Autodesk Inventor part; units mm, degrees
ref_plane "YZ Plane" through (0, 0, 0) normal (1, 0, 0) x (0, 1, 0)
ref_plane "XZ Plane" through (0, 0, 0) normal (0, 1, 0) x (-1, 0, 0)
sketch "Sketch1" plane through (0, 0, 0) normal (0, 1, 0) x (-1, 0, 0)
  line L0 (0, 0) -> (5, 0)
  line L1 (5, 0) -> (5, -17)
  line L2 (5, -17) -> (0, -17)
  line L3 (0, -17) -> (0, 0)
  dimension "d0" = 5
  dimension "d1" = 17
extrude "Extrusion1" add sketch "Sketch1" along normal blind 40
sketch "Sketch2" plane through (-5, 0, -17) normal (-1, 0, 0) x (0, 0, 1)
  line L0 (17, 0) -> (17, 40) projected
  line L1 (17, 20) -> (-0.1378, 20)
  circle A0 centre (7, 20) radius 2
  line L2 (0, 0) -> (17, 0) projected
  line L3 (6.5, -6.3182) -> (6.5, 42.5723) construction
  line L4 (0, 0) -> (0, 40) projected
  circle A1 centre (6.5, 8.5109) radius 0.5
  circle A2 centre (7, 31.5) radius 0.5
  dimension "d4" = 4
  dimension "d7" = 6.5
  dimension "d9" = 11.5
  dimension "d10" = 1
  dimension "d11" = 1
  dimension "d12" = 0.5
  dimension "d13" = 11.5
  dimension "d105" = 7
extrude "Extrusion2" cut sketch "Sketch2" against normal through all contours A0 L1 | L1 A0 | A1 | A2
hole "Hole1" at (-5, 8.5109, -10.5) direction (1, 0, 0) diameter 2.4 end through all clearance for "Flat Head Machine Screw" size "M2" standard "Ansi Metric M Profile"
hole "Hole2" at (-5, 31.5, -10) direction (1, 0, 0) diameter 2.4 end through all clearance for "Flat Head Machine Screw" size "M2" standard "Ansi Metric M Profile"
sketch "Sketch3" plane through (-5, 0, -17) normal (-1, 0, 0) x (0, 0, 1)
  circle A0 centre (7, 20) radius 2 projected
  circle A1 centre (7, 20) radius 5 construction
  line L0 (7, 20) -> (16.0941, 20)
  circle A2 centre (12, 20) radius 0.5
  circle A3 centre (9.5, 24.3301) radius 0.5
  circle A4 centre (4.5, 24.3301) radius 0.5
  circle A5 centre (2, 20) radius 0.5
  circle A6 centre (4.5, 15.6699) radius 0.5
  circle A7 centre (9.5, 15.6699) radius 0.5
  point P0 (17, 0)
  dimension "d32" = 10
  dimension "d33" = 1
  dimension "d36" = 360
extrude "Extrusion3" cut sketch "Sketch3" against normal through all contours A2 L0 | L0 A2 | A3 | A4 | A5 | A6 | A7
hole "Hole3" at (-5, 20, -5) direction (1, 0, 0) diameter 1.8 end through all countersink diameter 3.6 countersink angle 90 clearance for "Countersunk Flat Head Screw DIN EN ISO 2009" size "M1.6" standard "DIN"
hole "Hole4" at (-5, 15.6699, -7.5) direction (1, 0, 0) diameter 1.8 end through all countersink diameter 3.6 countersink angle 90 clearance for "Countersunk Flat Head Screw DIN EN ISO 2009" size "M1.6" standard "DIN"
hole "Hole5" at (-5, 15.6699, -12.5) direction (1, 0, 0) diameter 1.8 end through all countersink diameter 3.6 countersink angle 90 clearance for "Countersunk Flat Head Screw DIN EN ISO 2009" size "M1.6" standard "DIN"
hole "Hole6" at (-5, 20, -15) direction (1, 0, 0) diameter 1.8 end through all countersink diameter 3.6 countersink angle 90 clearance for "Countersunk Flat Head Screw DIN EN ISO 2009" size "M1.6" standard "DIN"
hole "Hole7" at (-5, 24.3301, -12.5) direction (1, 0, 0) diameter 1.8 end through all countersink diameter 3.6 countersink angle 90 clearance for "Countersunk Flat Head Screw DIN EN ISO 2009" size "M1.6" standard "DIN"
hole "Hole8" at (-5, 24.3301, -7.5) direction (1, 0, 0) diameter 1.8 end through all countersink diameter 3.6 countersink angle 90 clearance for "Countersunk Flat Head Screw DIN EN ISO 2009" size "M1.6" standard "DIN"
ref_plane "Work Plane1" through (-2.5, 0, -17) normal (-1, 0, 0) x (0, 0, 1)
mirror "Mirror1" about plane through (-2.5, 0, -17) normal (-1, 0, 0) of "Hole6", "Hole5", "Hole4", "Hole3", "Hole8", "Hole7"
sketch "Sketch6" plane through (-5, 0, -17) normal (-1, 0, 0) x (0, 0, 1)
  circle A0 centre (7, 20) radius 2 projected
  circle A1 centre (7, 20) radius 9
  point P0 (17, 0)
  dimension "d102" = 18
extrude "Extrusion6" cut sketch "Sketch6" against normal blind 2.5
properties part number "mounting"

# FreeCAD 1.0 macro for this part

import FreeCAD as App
import Part
import Sketcher
from FreeCAD import Vector
Q = App.Units.Quantity


def add_polygon(sketch, points):
    """Adds a closed chain of lines whose ends are joined by coincident constraints."""
    first, n = sketch.GeometryCount, len(points)
    for a, b in zip(points, points[1:] + points[:1]):
        sketch.addGeometry(Part.LineSegment(App.Vector(*a, 0), App.Vector(*b, 0)), False)
    for i in range(n):
        sketch.addConstraint(Sketcher.Constraint("Coincident", first + i, 2, first + (i + 1) % n, 1))

doc = App.newDocument("Part")
params = doc.addObject("Spreadsheet::Sheet", "Params")
for row, (alias, value) in enumerate([
    ("sketch1_width", "5 mm"),
    ("sketch1_height", "17 mm"),
    ("pad1_length", "40 mm"),
    ("sketch2_diameter", "4 mm"),
    ("sketch2_diameter2", "1 mm"),
    ("sketch3_diameter", "2.4 mm"),
    ("hole_diameter", "2.4 mm"),
    ("sketch4_diameter", "2.4 mm"),
    ("hole2_diameter", "2.4 mm"),
    ("sketch5_diameter", "1 mm"),
    ("sketch6_diameter", "1.8 mm"),
    ("hole3_diameter", "1.8 mm"),
    ("hole3_csink_diameter", "3.6 mm"),
    ("sketch7_diameter", "1.8 mm"),
    ("hole4_diameter", "1.8 mm"),
    ("hole4_csink_diameter", "3.6 mm"),
    ("sketch8_diameter", "1.8 mm"),
    ("hole5_diameter", "1.8 mm"),
    ("hole5_csink_diameter", "3.6 mm"),
    ("sketch9_diameter", "1.8 mm"),
    ("hole6_diameter", "1.8 mm"),
    ("hole6_csink_diameter", "3.6 mm"),
    ("sketch10_diameter", "1.8 mm"),
    ("hole7_diameter", "1.8 mm"),
    ("hole7_csink_diameter", "3.6 mm"),
    ("sketch11_diameter", "1.8 mm"),
    ("hole8_diameter", "1.8 mm"),
    ("hole8_csink_diameter", "3.6 mm"),
    ("sketch12_diameter", "18 mm"),
    ("sketch12_diameter2", "4 mm"),
    ("pocket3_length", "2.5 mm"),
], start=1):
    params.set(f"A{row}", alias)
    params.set(f"B{row}", "=" + value)
    params.setAlias(f"B{row}", alias)

body = doc.addObject("PartDesign::Body", "Body")

# Sketch on XZ plane
sketch1 = body.newObject("Sketcher::SketchObject", "Sketch")
sketch1.AttachmentSupport = (doc.getObject("XZ_Plane"), [""])
sketch1.MapMode = "FlatFace"
add_polygon(sketch1, [(-5, 0), (0, 0), (0, -17), (-5, -17)])  # lines 0-3
sketch1.addConstraint(Sketcher.Constraint("Horizontal", 0))
sketch1.addConstraint(Sketcher.Constraint("Vertical", 1))
sketch1.addConstraint(Sketcher.Constraint("Horizontal", 2))
sketch1.addConstraint(Sketcher.Constraint("Vertical", 3))
sketch1.addConstraint(Sketcher.Constraint("Coincident", 0, 2, -1, 1))
sketch1.addConstraint(Sketcher.Constraint("DistanceX", 0, 1, 0, 2, Q("5 mm")))
sketch1.addConstraint(Sketcher.Constraint("DistanceY", 1, 2, 1, 1, Q("17 mm")))
sketch1.setExpression("Constraints[9]", "Params.sketch1_width")
sketch1.setExpression("Constraints[10]", "Params.sketch1_height")
pad1 = body.newObject("PartDesign::Pad", "Pad")
pad1.Profile = sketch1
pad1.setExpression("Length", "Params.pad1_length")
pad1.Reversed = True

# Sketch on YZ plane
sketch2 = body.newObject("Sketcher::SketchObject", "Sketch001")
sketch2.AttachmentSupport = (doc.getObject("YZ_Plane"), [""])
sketch2.MapMode = "FlatFace"
sketch2.AttachmentOffset = App.Placement(Vector(0, 0, -5), App.Rotation())
sketch2.addGeometry(Part.Circle(Vector(20, -10, 0), Vector(0, 0, 1), 2), False)
sketch2.addGeometry(Part.Circle(Vector(8.5, -10.5, 0), Vector(0, 0, 1), 0.5), False)
sketch2.addGeometry(Part.Circle(Vector(31.5, -10, 0), Vector(0, 0, 1), 0.5), False)
sketch2.addConstraint(Sketcher.Constraint("Equal", 1, 2))
sketch2.addConstraint(Sketcher.Constraint("Horizontal", 0, 3, 2, 3))
sketch2.addConstraint(Sketcher.Constraint("Diameter", 0, Q("4 mm")))
sketch2.addConstraint(Sketcher.Constraint("Diameter", 1, Q("1 mm")))
sketch2.addConstraint(Sketcher.Constraint("DistanceY", 1, 3, 0, 3, Q("0.5 mm")))
sketch2.addConstraint(Sketcher.Constraint("DistanceX", 0, 3, 2, 3, Q("11.5 mm")))
sketch2.addConstraint(Sketcher.Constraint("DistanceX", -1, 1, 0, 3, Q("20 mm")))
sketch2.addConstraint(Sketcher.Constraint("DistanceY", 0, 3, -1, 1, Q("10 mm")))
sketch2.addConstraint(Sketcher.Constraint("DistanceX", -1, 1, 1, 3, Q("8.511 mm")))
sketch2.setExpression("Constraints[2]", "Params.sketch2_diameter")
sketch2.setExpression("Constraints[3]", "Params.sketch2_diameter2")
pocket1 = body.newObject("PartDesign::Pocket", "Pocket")
pocket1.Profile = sketch2
pocket1.Type = "ThroughAll"
pocket1.Reversed = True

# Sketch on YZ plane
sketch3 = body.newObject("Sketcher::SketchObject", "Sketch002")
sketch3.AttachmentSupport = (doc.getObject("YZ_Plane"), [""])
sketch3.MapMode = "FlatFace"
sketch3.AttachmentOffset = App.Placement(Vector(0, 0, -5), App.Rotation())
sketch3.addGeometry(Part.Circle(Vector(8.5, -10.5, 0), Vector(0, 0, 1), 1.2), False)
sketch3.addConstraint(Sketcher.Constraint("Diameter", 0, Q("2.4 mm")))
sketch3.addConstraint(Sketcher.Constraint("DistanceY", 0, 3, -1, 1, Q("10.5 mm")))
sketch3.addConstraint(Sketcher.Constraint("DistanceX", -1, 1, 0, 3, Q("8.511 mm")))
sketch3.setExpression("Constraints[0]", "Params.sketch3_diameter")
doc.recompute()
hole = body.newObject("PartDesign::Hole", "Hole")
hole.Profile = sketch3
hole.ThreadType = "None"
hole.setExpression("Diameter", "Params.hole_diameter")
hole.DepthType = "ThroughAll"
hole.Reversed = True

# Sketch on YZ plane
sketch4 = body.newObject("Sketcher::SketchObject", "Sketch003")
sketch4.AttachmentSupport = (doc.getObject("YZ_Plane"), [""])
sketch4.MapMode = "FlatFace"
sketch4.AttachmentOffset = App.Placement(Vector(0, 0, -5), App.Rotation())
sketch4.addGeometry(Part.Circle(Vector(31.5, -10, 0), Vector(0, 0, 1), 1.2), False)
sketch4.addConstraint(Sketcher.Constraint("Diameter", 0, Q("2.4 mm")))
sketch4.addConstraint(Sketcher.Constraint("DistanceY", 0, 3, -1, 1, Q("10 mm")))
sketch4.addConstraint(Sketcher.Constraint("DistanceX", -1, 1, 0, 3, Q("31.5 mm")))
sketch4.setExpression("Constraints[0]", "Params.sketch4_diameter")
doc.recompute()
hole2 = body.newObject("PartDesign::Hole", "Hole001")
hole2.Profile = sketch4
hole2.ThreadType = "None"
hole2.setExpression("Diameter", "Params.hole2_diameter")
hole2.DepthType = "ThroughAll"
hole2.Reversed = True

# Sketch on YZ plane
sketch5 = body.newObject("Sketcher::SketchObject", "Sketch004")
sketch5.AttachmentSupport = (doc.getObject("YZ_Plane"), [""])
sketch5.MapMode = "FlatFace"
sketch5.AttachmentOffset = App.Placement(Vector(0, 0, -5), App.Rotation())
sketch5.addGeometry(Part.Circle(Vector(20, -5, 0), Vector(0, 0, 1), 0.5), False)
sketch5.addGeometry(Part.Circle(Vector(24.3, -7.5, 0), Vector(0, 0, 1), 0.5), False)
sketch5.addGeometry(Part.Circle(Vector(24.3, -12.5, 0), Vector(0, 0, 1), 0.5), False)
sketch5.addGeometry(Part.Circle(Vector(20, -15, 0), Vector(0, 0, 1), 0.5), False)
sketch5.addGeometry(Part.Circle(Vector(15.7, -12.5, 0), Vector(0, 0, 1), 0.5), False)
sketch5.addGeometry(Part.Circle(Vector(15.7, -7.5, 0), Vector(0, 0, 1), 0.5), False)
sketch5.addConstraint(Sketcher.Constraint("Equal", 0, 1))
sketch5.addConstraint(Sketcher.Constraint("Equal", 1, 2))
sketch5.addConstraint(Sketcher.Constraint("Equal", 2, 3))
sketch5.addConstraint(Sketcher.Constraint("Equal", 3, 4))
sketch5.addConstraint(Sketcher.Constraint("Equal", 4, 5))
sketch5.addConstraint(Sketcher.Constraint("Horizontal", 2, 3, 4, 3))
sketch5.addConstraint(Sketcher.Constraint("Horizontal", 1, 3, 5, 3))
sketch5.addConstraint(Sketcher.Constraint("Vertical", 1, 3, 2, 3))
sketch5.addConstraint(Sketcher.Constraint("Vertical", 0, 3, 3, 3))
sketch5.addConstraint(Sketcher.Constraint("Vertical", 4, 3, 5, 3))
sketch5.addConstraint(Sketcher.Constraint("Diameter", 0, Q("1 mm")))
sketch5.addConstraint(Sketcher.Constraint("DistanceY", 3, 3, 0, 3, Q("10 mm")))
sketch5.addConstraint(Sketcher.Constraint("DistanceX", -1, 1, 0, 3, Q("20 mm")))
sketch5.addConstraint(Sketcher.Constraint("DistanceY", 0, 3, -1, 1, Q("5 mm")))
sketch5.addConstraint(Sketcher.Constraint("DistanceY", 2, 3, 1, 3, Q("5 mm")))
sketch5.addConstraint(Sketcher.Constraint("DistanceY", 1, 3, -1, 1, Q("7.5 mm")))
sketch5.addConstraint(Sketcher.Constraint("DistanceX", -1, 1, 1, 3, Q("24.33 mm")))
sketch5.addConstraint(Sketcher.Constraint("DistanceX", -1, 1, 4, 3, Q("15.67 mm")))
sketch5.setExpression("Constraints[10]", "Params.sketch5_diameter")
pocket2 = body.newObject("PartDesign::Pocket", "Pocket001")
pocket2.Profile = sketch5
pocket2.Type = "ThroughAll"
pocket2.Reversed = True

# Sketch on YZ plane
sketch6 = body.newObject("Sketcher::SketchObject", "Sketch005")
sketch6.AttachmentSupport = (doc.getObject("YZ_Plane"), [""])
sketch6.MapMode = "FlatFace"
sketch6.AttachmentOffset = App.Placement(Vector(0, 0, -5), App.Rotation())
sketch6.addGeometry(Part.Circle(Vector(20, -5, 0), Vector(0, 0, 1), 0.9), False)
sketch6.addConstraint(Sketcher.Constraint("Diameter", 0, Q("1.8 mm")))
sketch6.addConstraint(Sketcher.Constraint("DistanceX", -1, 1, 0, 3, Q("20 mm")))
sketch6.addConstraint(Sketcher.Constraint("DistanceY", 0, 3, -1, 1, Q("5 mm")))
sketch6.setExpression("Constraints[0]", "Params.sketch6_diameter")
doc.recompute()
hole3 = body.newObject("PartDesign::Hole", "Hole002")
hole3.Profile = sketch6
hole3.ThreadType = "None"
hole3.setExpression("Diameter", "Params.hole3_diameter")
hole3.DepthType = "ThroughAll"
hole3.HoleCutType = "Countersink"
hole3.setExpression("HoleCutDiameter", "Params.hole3_csink_diameter")
hole3.HoleCutCountersinkAngle = 90
hole3.Reversed = True

# Sketch on YZ plane
sketch7 = body.newObject("Sketcher::SketchObject", "Sketch006")
sketch7.AttachmentSupport = (doc.getObject("YZ_Plane"), [""])
sketch7.MapMode = "FlatFace"
sketch7.AttachmentOffset = App.Placement(Vector(0, 0, -5), App.Rotation())
sketch7.addGeometry(Part.Circle(Vector(15.7, -7.5, 0), Vector(0, 0, 1), 0.9), False)
sketch7.addConstraint(Sketcher.Constraint("Diameter", 0, Q("1.8 mm")))
sketch7.addConstraint(Sketcher.Constraint("DistanceY", 0, 3, -1, 1, Q("7.5 mm")))
sketch7.addConstraint(Sketcher.Constraint("DistanceX", -1, 1, 0, 3, Q("15.67 mm")))
sketch7.setExpression("Constraints[0]", "Params.sketch7_diameter")
doc.recompute()
hole4 = body.newObject("PartDesign::Hole", "Hole003")
hole4.Profile = sketch7
hole4.ThreadType = "None"
hole4.setExpression("Diameter", "Params.hole4_diameter")
hole4.DepthType = "ThroughAll"
hole4.HoleCutType = "Countersink"
hole4.setExpression("HoleCutDiameter", "Params.hole4_csink_diameter")
hole4.HoleCutCountersinkAngle = 90
hole4.Reversed = True

# Sketch on YZ plane
sketch8 = body.newObject("Sketcher::SketchObject", "Sketch007")
sketch8.AttachmentSupport = (doc.getObject("YZ_Plane"), [""])
sketch8.MapMode = "FlatFace"
sketch8.AttachmentOffset = App.Placement(Vector(0, 0, -5), App.Rotation())
sketch8.addGeometry(Part.Circle(Vector(15.7, -12.5, 0), Vector(0, 0, 1), 0.9), False)
sketch8.addConstraint(Sketcher.Constraint("Diameter", 0, Q("1.8 mm")))
sketch8.addConstraint(Sketcher.Constraint("DistanceY", 0, 3, -1, 1, Q("12.5 mm")))
sketch8.addConstraint(Sketcher.Constraint("DistanceX", -1, 1, 0, 3, Q("15.67 mm")))
sketch8.setExpression("Constraints[0]", "Params.sketch8_diameter")
doc.recompute()
hole5 = body.newObject("PartDesign::Hole", "Hole004")
hole5.Profile = sketch8
hole5.ThreadType = "None"
hole5.setExpression("Diameter", "Params.hole5_diameter")
hole5.DepthType = "ThroughAll"
hole5.HoleCutType = "Countersink"
hole5.setExpression("HoleCutDiameter", "Params.hole5_csink_diameter")
hole5.HoleCutCountersinkAngle = 90
hole5.Reversed = True

# Sketch on YZ plane
sketch9 = body.newObject("Sketcher::SketchObject", "Sketch008")
sketch9.AttachmentSupport = (doc.getObject("YZ_Plane"), [""])
sketch9.MapMode = "FlatFace"
sketch9.AttachmentOffset = App.Placement(Vector(0, 0, -5), App.Rotation())
sketch9.addGeometry(Part.Circle(Vector(20, -15, 0), Vector(0, 0, 1), 0.9), False)
sketch9.addConstraint(Sketcher.Constraint("Diameter", 0, Q("1.8 mm")))
sketch9.addConstraint(Sketcher.Constraint("DistanceX", -1, 1, 0, 3, Q("20 mm")))
sketch9.addConstraint(Sketcher.Constraint("DistanceY", 0, 3, -1, 1, Q("15 mm")))
sketch9.setExpression("Constraints[0]", "Params.sketch9_diameter")
doc.recompute()
hole6 = body.newObject("PartDesign::Hole", "Hole005")
hole6.Profile = sketch9
hole6.ThreadType = "None"
hole6.setExpression("Diameter", "Params.hole6_diameter")
hole6.DepthType = "ThroughAll"
hole6.HoleCutType = "Countersink"
hole6.setExpression("HoleCutDiameter", "Params.hole6_csink_diameter")
hole6.HoleCutCountersinkAngle = 90
hole6.Reversed = True

# Sketch on YZ plane
sketch10 = body.newObject("Sketcher::SketchObject", "Sketch009")
sketch10.AttachmentSupport = (doc.getObject("YZ_Plane"), [""])
sketch10.MapMode = "FlatFace"
sketch10.AttachmentOffset = App.Placement(Vector(0, 0, -5), App.Rotation())
sketch10.addGeometry(Part.Circle(Vector(24.3, -12.5, 0), Vector(0, 0, 1), 0.9), False)
sketch10.addConstraint(Sketcher.Constraint("Diameter", 0, Q("1.8 mm")))
sketch10.addConstraint(Sketcher.Constraint("DistanceY", 0, 3, -1, 1, Q("12.5 mm")))
sketch10.addConstraint(Sketcher.Constraint("DistanceX", -1, 1, 0, 3, Q("24.33 mm")))
sketch10.setExpression("Constraints[0]", "Params.sketch10_diameter")
doc.recompute()
hole7 = body.newObject("PartDesign::Hole", "Hole006")
hole7.Profile = sketch10
hole7.ThreadType = "None"
hole7.setExpression("Diameter", "Params.hole7_diameter")
hole7.DepthType = "ThroughAll"
hole7.HoleCutType = "Countersink"
hole7.setExpression("HoleCutDiameter", "Params.hole7_csink_diameter")
hole7.HoleCutCountersinkAngle = 90
hole7.Reversed = True

# Sketch on YZ plane
sketch11 = body.newObject("Sketcher::SketchObject", "Sketch010")
sketch11.AttachmentSupport = (doc.getObject("YZ_Plane"), [""])
sketch11.MapMode = "FlatFace"
sketch11.AttachmentOffset = App.Placement(Vector(0, 0, -5), App.Rotation())
sketch11.addGeometry(Part.Circle(Vector(24.3, -7.5, 0), Vector(0, 0, 1), 0.9), False)
sketch11.addConstraint(Sketcher.Constraint("Diameter", 0, Q("1.8 mm")))
sketch11.addConstraint(Sketcher.Constraint("DistanceY", 0, 3, -1, 1, Q("7.5 mm")))
sketch11.addConstraint(Sketcher.Constraint("DistanceX", -1, 1, 0, 3, Q("24.33 mm")))
sketch11.setExpression("Constraints[0]", "Params.sketch11_diameter")
doc.recompute()
hole8 = body.newObject("PartDesign::Hole", "Hole007")
hole8.Profile = sketch11
hole8.ThreadType = "None"
hole8.setExpression("Diameter", "Params.hole8_diameter")
hole8.DepthType = "ThroughAll"
hole8.HoleCutType = "Countersink"
hole8.setExpression("HoleCutDiameter", "Params.hole8_csink_diameter")
hole8.HoleCutCountersinkAngle = 90
hole8.Reversed = True
doc.recompute()

datumplane = body.newObject("PartDesign::Plane", "DatumPlane")
datumplane.AttachmentSupport = (doc.getObject("YZ_Plane"), [""])
datumplane.MapMode = "FlatFace"
datumplane.AttachmentOffset = App.Placement(Vector(0, 0, -2.5), App.Rotation())
mirrored = body.newObject("PartDesign::Mirrored", "Mirrored")
mirrored.Originals = [hole6, hole5, hole4, hole3, hole8, hole7]
mirrored.MirrorPlane = (datumplane, [""])
body.Tip = mirrored

# Sketch on YZ plane
sketch12 = body.newObject("Sketcher::SketchObject", "Sketch011")
sketch12.AttachmentSupport = (doc.getObject("YZ_Plane"), [""])
sketch12.MapMode = "FlatFace"
sketch12.AttachmentOffset = App.Placement(Vector(0, 0, -5), App.Rotation())
sketch12.addGeometry(Part.Circle(Vector(20, -10, 0), Vector(0, 0, 1), 9), False)
sketch12.addGeometry(Part.Circle(Vector(20, -10, 0), Vector(0, 0, 1), 2), False)
sketch12.addConstraint(Sketcher.Constraint("Coincident", 1, 3, 0, 3))
sketch12.addConstraint(Sketcher.Constraint("Diameter", 0, Q("18 mm")))
sketch12.addConstraint(Sketcher.Constraint("Diameter", 1, Q("4 mm")))
sketch12.addConstraint(Sketcher.Constraint("DistanceX", -1, 1, 0, 3, Q("20 mm")))
sketch12.addConstraint(Sketcher.Constraint("DistanceY", 0, 3, -1, 1, Q("10 mm")))
sketch12.setExpression("Constraints[1]", "Params.sketch12_diameter")
sketch12.setExpression("Constraints[2]", "Params.sketch12_diameter2")
pocket3 = body.newObject("PartDesign::Pocket", "Pocket002")
pocket3.Profile = sketch12
pocket3.setExpression("Length", "Params.pocket3_length")
pocket3.Reversed = True

doc.recompute()
